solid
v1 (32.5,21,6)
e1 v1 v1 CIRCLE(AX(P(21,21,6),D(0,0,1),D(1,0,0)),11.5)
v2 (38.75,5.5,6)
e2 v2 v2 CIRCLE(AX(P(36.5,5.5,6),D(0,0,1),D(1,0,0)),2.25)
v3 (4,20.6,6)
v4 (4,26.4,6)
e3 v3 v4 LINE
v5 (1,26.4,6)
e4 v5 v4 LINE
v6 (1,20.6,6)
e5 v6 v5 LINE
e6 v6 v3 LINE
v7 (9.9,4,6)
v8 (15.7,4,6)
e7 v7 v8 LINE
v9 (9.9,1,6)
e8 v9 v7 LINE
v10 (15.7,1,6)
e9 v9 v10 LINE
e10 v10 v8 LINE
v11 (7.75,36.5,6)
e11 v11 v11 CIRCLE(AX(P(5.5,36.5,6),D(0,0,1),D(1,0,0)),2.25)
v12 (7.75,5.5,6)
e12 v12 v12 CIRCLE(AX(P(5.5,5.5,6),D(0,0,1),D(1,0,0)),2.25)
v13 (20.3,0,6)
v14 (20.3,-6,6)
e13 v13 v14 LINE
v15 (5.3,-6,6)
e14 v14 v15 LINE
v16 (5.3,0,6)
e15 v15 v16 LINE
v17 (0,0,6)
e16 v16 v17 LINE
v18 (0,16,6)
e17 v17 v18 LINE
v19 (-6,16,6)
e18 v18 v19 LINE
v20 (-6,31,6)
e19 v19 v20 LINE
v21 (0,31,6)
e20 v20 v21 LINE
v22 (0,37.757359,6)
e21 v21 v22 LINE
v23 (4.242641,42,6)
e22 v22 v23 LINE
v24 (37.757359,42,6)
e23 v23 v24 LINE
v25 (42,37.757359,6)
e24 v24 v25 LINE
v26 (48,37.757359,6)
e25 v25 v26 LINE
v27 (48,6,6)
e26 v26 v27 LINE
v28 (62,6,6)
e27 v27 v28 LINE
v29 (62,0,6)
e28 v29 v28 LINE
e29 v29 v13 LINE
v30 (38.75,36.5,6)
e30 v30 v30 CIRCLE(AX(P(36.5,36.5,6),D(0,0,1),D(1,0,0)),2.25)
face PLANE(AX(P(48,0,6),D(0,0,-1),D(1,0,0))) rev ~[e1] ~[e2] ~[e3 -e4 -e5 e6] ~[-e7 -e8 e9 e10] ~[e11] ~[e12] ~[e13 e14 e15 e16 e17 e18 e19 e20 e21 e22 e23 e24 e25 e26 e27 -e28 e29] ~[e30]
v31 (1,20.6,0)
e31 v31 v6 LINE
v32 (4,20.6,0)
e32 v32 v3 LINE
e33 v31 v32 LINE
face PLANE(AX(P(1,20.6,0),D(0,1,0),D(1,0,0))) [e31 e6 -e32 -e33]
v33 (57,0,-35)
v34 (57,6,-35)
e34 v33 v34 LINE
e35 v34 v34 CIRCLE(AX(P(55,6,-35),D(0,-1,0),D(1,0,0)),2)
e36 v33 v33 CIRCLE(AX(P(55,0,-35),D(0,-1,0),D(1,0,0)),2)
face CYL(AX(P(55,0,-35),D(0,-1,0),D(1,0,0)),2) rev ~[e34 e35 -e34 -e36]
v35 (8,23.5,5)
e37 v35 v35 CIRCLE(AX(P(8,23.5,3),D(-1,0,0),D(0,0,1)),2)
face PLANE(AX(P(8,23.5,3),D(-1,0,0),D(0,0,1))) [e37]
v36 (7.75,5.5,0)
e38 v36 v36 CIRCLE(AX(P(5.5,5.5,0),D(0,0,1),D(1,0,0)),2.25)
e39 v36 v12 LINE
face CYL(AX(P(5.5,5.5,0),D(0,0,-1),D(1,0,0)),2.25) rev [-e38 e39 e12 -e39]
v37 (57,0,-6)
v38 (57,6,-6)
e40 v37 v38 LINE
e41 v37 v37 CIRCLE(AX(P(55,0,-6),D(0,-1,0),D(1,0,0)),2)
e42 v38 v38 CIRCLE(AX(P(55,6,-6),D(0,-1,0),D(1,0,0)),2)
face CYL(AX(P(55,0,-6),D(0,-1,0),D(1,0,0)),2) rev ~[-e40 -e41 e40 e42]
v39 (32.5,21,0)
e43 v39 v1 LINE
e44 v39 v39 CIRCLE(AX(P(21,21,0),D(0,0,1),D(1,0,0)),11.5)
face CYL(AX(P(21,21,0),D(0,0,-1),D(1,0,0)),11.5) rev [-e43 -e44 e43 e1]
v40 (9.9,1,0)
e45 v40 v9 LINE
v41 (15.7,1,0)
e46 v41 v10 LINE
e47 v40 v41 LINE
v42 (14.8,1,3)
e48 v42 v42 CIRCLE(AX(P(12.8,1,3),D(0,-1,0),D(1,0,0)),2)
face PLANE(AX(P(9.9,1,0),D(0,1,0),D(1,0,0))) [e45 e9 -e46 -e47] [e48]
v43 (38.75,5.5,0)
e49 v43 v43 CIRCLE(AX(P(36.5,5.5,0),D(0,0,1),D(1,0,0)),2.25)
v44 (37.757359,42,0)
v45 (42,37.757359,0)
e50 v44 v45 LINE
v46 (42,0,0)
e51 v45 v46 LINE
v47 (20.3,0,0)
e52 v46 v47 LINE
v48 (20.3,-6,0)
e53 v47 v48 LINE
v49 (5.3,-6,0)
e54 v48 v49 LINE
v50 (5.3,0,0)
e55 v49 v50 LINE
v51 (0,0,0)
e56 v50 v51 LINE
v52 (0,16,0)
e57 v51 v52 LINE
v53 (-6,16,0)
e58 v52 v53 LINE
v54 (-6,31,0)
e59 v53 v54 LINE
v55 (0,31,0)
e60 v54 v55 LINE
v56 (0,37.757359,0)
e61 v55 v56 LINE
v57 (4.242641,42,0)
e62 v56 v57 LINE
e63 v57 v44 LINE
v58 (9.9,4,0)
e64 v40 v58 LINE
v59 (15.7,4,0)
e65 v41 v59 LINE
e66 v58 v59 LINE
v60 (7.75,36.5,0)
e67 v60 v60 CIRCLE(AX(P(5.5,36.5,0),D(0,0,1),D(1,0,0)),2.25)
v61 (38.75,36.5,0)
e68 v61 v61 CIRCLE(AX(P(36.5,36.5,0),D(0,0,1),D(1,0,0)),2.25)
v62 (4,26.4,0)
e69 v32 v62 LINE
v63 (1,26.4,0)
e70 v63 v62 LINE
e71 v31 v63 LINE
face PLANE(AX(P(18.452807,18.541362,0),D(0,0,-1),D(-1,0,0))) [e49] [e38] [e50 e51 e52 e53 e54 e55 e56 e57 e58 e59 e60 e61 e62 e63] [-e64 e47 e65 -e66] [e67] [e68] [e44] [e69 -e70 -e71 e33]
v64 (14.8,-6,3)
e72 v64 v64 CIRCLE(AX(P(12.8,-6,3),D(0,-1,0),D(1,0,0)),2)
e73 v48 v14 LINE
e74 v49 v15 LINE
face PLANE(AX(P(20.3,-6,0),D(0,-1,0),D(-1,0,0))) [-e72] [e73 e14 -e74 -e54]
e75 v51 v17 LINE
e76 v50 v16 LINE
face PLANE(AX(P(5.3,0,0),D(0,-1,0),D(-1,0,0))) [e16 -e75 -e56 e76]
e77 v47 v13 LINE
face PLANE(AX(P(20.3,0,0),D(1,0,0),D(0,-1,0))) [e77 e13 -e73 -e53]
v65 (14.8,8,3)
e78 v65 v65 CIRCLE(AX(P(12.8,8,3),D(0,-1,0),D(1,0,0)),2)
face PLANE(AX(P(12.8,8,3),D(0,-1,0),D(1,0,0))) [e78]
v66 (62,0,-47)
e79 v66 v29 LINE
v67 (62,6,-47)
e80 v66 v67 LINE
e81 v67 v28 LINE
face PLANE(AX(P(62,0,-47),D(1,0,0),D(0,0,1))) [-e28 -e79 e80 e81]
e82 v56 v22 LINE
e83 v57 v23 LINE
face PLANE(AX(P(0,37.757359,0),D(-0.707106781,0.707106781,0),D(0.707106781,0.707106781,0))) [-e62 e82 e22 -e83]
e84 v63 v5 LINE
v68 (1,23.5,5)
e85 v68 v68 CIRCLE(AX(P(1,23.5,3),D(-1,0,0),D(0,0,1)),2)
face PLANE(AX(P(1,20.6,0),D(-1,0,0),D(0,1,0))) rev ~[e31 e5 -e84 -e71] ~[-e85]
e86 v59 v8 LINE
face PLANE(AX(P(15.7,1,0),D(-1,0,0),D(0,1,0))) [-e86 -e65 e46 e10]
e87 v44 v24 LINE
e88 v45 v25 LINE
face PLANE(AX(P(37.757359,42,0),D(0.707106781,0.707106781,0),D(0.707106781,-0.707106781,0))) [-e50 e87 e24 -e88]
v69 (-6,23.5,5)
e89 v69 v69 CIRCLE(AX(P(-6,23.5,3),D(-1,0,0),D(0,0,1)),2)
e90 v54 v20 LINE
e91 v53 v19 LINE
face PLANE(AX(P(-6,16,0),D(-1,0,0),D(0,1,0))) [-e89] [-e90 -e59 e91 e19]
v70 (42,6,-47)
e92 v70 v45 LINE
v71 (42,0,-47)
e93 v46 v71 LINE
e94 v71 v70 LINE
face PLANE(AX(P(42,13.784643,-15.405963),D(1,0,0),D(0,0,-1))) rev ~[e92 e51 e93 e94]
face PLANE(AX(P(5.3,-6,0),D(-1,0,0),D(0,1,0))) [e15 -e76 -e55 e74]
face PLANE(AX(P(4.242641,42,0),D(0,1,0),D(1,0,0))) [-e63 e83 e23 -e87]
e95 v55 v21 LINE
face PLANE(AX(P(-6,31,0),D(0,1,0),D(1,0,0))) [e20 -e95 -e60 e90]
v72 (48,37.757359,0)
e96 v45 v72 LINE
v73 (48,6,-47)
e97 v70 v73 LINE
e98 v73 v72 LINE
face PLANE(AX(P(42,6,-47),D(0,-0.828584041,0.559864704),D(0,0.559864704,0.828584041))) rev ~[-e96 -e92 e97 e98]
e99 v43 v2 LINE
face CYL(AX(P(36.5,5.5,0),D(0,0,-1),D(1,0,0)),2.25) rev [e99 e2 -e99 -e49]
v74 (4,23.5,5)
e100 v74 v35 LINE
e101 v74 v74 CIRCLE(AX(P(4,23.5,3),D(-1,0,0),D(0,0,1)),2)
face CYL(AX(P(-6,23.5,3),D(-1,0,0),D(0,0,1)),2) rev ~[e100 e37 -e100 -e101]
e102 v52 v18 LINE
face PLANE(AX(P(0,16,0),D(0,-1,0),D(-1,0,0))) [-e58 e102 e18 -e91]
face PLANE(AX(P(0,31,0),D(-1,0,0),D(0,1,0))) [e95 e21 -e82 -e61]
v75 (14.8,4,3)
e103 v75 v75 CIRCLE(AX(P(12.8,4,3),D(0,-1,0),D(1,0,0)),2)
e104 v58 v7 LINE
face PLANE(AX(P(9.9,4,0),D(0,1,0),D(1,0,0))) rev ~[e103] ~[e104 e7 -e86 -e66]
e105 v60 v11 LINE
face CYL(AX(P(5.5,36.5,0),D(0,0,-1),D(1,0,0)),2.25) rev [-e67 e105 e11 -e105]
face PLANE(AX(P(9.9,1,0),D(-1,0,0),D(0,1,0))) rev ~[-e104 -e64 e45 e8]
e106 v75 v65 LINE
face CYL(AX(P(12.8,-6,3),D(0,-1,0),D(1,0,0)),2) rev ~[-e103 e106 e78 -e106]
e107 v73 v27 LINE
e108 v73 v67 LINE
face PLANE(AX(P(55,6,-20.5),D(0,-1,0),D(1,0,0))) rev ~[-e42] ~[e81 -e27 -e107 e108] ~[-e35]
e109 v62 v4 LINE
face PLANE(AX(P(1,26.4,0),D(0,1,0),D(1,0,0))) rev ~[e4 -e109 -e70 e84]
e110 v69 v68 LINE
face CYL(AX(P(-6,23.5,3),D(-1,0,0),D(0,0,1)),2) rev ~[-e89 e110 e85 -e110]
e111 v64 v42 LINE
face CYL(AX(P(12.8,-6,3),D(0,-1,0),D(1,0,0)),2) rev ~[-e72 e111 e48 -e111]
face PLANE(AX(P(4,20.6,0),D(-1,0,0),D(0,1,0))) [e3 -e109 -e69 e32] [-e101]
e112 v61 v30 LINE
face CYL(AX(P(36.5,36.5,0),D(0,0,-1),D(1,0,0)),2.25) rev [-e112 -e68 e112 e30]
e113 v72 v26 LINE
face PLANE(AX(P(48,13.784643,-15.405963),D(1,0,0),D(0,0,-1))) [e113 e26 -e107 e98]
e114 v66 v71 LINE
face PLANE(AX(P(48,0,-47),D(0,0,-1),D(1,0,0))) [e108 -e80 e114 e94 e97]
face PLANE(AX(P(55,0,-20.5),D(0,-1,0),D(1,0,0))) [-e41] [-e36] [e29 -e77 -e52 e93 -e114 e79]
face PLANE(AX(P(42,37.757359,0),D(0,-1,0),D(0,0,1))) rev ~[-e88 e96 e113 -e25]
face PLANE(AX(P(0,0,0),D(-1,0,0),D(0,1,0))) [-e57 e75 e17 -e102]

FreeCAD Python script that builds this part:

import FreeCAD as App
import Part
import Sketcher
Q = App.Units.Quantity

doc = App.newDocument("Part")
params = doc.addObject("Spreadsheet::Sheet", "Params")
for row, (alias, value) in enumerate([
    ("sketch1_diameter", "23 mm"),
    ("sketch1_diameter2", "4.5 mm"),
    ("sketch1_width", "15 mm"),
    ("sketch1_width2", "6 mm"),
    ("sketch1_width3", "3 mm"),
    ("pad1_length", "6 mm"),
    ("sketch2_width", "6 mm"),
    ("sketch2_height", "53 mm"),
    ("pad2_length", "6 mm"),
    ("sketch3_diameter", "4 mm"),
    ("sketch3_width", "14 mm"),
    ("sketch3_height", "53 mm"),
    ("pad3_length", "6 mm"),
    ("sketch4_diameter", "4 mm"),
    ("pocket1_length", "14 mm"),
    ("sketch5_diameter", "4 mm"),
    ("pocket2_length", "14 mm"),
], start=1):
    params.set(f"A{row}", alias)
    params.set(f"B{row}", "=" + value)
    params.setAlias(f"B{row}", alias)

body = doc.addObject("PartDesign::Body", "Body")

sketch1 = body.newObject("Sketcher::SketchObject", "Sketch")
sketch1.AttachmentSupport = (doc.getObject("XY_Plane"), [""])
sketch1.MapMode = "FlatFace"
sketch1.addGeometry([
    Part.LineSegment(App.Vector(0, 16, 0), App.Vector(0, 0, 0)),
    Part.LineSegment(App.Vector(0, 0, 0), App.Vector(5.3, 0, 0)),
    Part.LineSegment(App.Vector(5.3, 0, 0), App.Vector(5.3, -6, 0)),
    Part.LineSegment(App.Vector(5.3, -6, 0), App.Vector(20.3, -6, 0)),
    Part.LineSegment(App.Vector(20.3, -6, 0), App.Vector(20.3, 0, 0)),
    Part.LineSegment(App.Vector(20.3, 0, 0), App.Vector(42, 0, 0)),
    Part.LineSegment(App.Vector(42, 0, 0), App.Vector(42, 37.8, 0)),
    Part.LineSegment(App.Vector(42, 37.8, 0), App.Vector(37.8, 42, 0)),
    Part.LineSegment(App.Vector(37.8, 42, 0), App.Vector(4.2, 42, 0)),
    Part.LineSegment(App.Vector(4.2, 42, 0), App.Vector(0, 37.8, 0)),
    Part.LineSegment(App.Vector(0, 37.8, 0), App.Vector(0, 31, 0)),
    Part.LineSegment(App.Vector(0, 31, 0), App.Vector(-6, 31, 0)),
    Part.LineSegment(App.Vector(-6, 31, 0), App.Vector(-6, 16, 0)),
    Part.LineSegment(App.Vector(-6, 16, 0), App.Vector(0, 16, 0)),
    Part.Circle(App.Vector(36.5, 5.5, 0), App.Vector(0, 0, 1), 2.2),
    Part.LineSegment(App.Vector(9.9, 1, 0), App.Vector(9.9, 4, 0)),
    Part.LineSegment(App.Vector(9.9, 4, 0), App.Vector(15.7, 4, 0)),
    Part.LineSegment(App.Vector(15.7, 4, 0), App.Vector(15.7, 1, 0)),
    Part.LineSegment(App.Vector(15.7, 1, 0), App.Vector(9.9, 1, 0)),
    Part.Circle(App.Vector(5.5, 5.5, 0), App.Vector(0, 0, 1), 2.2),
    Part.Circle(App.Vector(21, 21, 0), App.Vector(0, 0, 1), 11.5),
    Part.Circle(App.Vector(36.5, 36.5, 0), App.Vector(0, 0, 1), 2.2),
    Part.LineSegment(App.Vector(1, 20.6, 0), App.Vector(1, 26.4, 0)),
    Part.LineSegment(App.Vector(1, 26.4, 0), App.Vector(4, 26.4, 0)),
    Part.LineSegment(App.Vector(4, 26.4, 0), App.Vector(4, 20.6, 0)),
    Part.LineSegment(App.Vector(4, 20.6, 0), App.Vector(1, 20.6, 0)),
    Part.Circle(App.Vector(5.5, 36.5, 0), App.Vector(0, 0, 1), 2.2),
], False)
sketch1.addConstraint([
    Sketcher.Constraint("Coincident", 0, 2, 1, 1),
    Sketcher.Constraint("Coincident", 1, 2, 2, 1),
    Sketcher.Constraint("Coincident", 2, 2, 3, 1),
    Sketcher.Constraint("Coincident", 3, 2, 4, 1),
    Sketcher.Constraint("Coincident", 4, 2, 5, 1),
    Sketcher.Constraint("Coincident", 5, 2, 6, 1),
    Sketcher.Constraint("Coincident", 6, 2, 7, 1),
    Sketcher.Constraint("Coincident", 7, 2, 8, 1),
    Sketcher.Constraint("Coincident", 8, 2, 9, 1),
    Sketcher.Constraint("Coincident", 9, 2, 10, 1),
    Sketcher.Constraint("Coincident", 10, 2, 11, 1),
    Sketcher.Constraint("Coincident", 11, 2, 12, 1),
    Sketcher.Constraint("Coincident", 12, 2, 13, 1),
    Sketcher.Constraint("Coincident", 13, 2, 0, 1),
    Sketcher.Constraint("Coincident", 15, 2, 16, 1),
    Sketcher.Constraint("Coincident", 16, 2, 17, 1),
    Sketcher.Constraint("Coincident", 17, 2, 18, 1),
    Sketcher.Constraint("Coincident", 18, 2, 15, 1),
    Sketcher.Constraint("Coincident", 22, 2, 23, 1),
    Sketcher.Constraint("Coincident", 23, 2, 24, 1),
    Sketcher.Constraint("Coincident", 24, 2, 25, 1),
    Sketcher.Constraint("Coincident", 25, 2, 22, 1),
    Sketcher.Constraint("Vertical", 0),
    Sketcher.Constraint("Horizontal", 1),
    Sketcher.Constraint("Vertical", 2),
    Sketcher.Constraint("Horizontal", 3),
    Sketcher.Constraint("Vertical", 4),
    Sketcher.Constraint("Horizontal", 5),
    Sketcher.Constraint("Vertical", 6),
    Sketcher.Constraint("Horizontal", 8),
    Sketcher.Constraint("Vertical", 10),
    Sketcher.Constraint("Horizontal", 11),
    Sketcher.Constraint("Vertical", 12),
    Sketcher.Constraint("Horizontal", 13),
    Sketcher.Constraint("Vertical", 15),
    Sketcher.Constraint("Horizontal", 16),
    Sketcher.Constraint("Vertical", 17),
    Sketcher.Constraint("Horizontal", 18),
    Sketcher.Constraint("Vertical", 22),
    Sketcher.Constraint("Horizontal", 23),
    Sketcher.Constraint("Vertical", 24),
    Sketcher.Constraint("Horizontal", 25),
    Sketcher.Constraint("Coincident", 0, 2, -1, 1),
    Sketcher.Constraint("Equal", 14, 19),
    Sketcher.Constraint("Equal", 19, 21),
    Sketcher.Constraint("Equal", 21, 26),
    Sketcher.Constraint("PointOnObject", 4, 2, -1),
    Sketcher.Constraint("PointOnObject", 9, 2, -2),
    Sketcher.Constraint("Perpendicular", 7, 9),
    Sketcher.Constraint("Horizontal", 14, 3, 19, 3),
    Sketcher.Constraint("Horizontal", 21, 3, 26, 3),
    Sketcher.Constraint("Horizontal", 6, 2, 9, 2),
    Sketcher.Constraint("Vertical", 14, 3, 21, 3),
    Sketcher.Constraint("Vertical", 19, 3, 26, 3),
    Sketcher.Constraint("Equal", 13, 2),
    Sketcher.Constraint("Equal", 3, 12),
    Sketcher.Constraint("Equal", 25, 15),
    Sketcher.Constraint("Equal", 18, 22),
    Sketcher.Constraint("Equal", 7, 9),
    Sketcher.Constraint("Diameter", 20, Q("23 mm")),
    Sketcher.Constraint("Diameter", 14, Q("4.5 mm")),
    Sketcher.Constraint("DistanceX", 3, 1, 3, 2, Q("15 mm")),
    Sketcher.Constraint("DistanceX", 11, 2, 11, 1, Q("6 mm")),
    Sketcher.Constraint("DistanceX", 23, 1, 23, 2, Q("3 mm")),
    Sketcher.Constraint("DistanceY", 0, 2, 0, 1, Q("16 mm")),
    Sketcher.Constraint("Distance", 7, Q("6 mm")),
    Sketcher.Constraint("DistanceX", 1, 1, 1, 2, Q("5.3 mm")),
    Sketcher.Constraint("DistanceX", 5, 1, 5, 2, Q("21.7 mm")),
    Sketcher.Constraint("DistanceX", 16, 1, 16, 2, Q("5.8 mm")),
    Sketcher.Constraint("DistanceX", -1, 1, 20, 3, Q("21 mm")),
    Sketcher.Constraint("DistanceY", -1, 1, 20, 3, Q("21 mm")),
    Sketcher.Constraint("DistanceY", -1, 1, 7, 2, Q("42 mm")),
    Sketcher.Constraint("DistanceY", -1, 1, 15, 2, Q("4 mm")),
    Sketcher.Constraint("DistanceX", -1, 1, 22, 2, Q("1 mm")),
    Sketcher.Constraint("DistanceX", 19, 3, 14, 3, Q("31 mm")),
    Sketcher.Constraint("DistanceY", 14, 3, 21, 3, Q("31 mm")),
    Sketcher.Constraint("DistanceX", -1, 1, 14, 3, Q("36.5 mm")),
    Sketcher.Constraint("DistanceY", -1, 1, 14, 3, Q("5.5 mm")),
    Sketcher.Constraint("DistanceX", -1, 1, 15, 2, Q("9.9 mm")),
    Sketcher.Constraint("DistanceY", -1, 1, 22, 2, Q("26.4 mm")),
])
sketch1.setExpression("Constraints[59]", "Params.sketch1_diameter")
sketch1.setExpression("Constraints[60]", "Params.sketch1_diameter2")
sketch1.setExpression("Constraints[61]", "Params.sketch1_width")
sketch1.setExpression("Constraints[62]", "Params.sketch1_width2")
sketch1.setExpression("Constraints[63]", "Params.sketch1_width3")
pad1 = body.newObject("PartDesign::Pad", "Pad")
pad1.Profile = sketch1
pad1.setExpression("Length", "Params.pad1_length")

sketch2 = body.newObject("Sketcher::SketchObject", "Sketch001")
sketch2.AttachmentSupport = (doc.getObject("YZ_Plane"), [""])
sketch2.MapMode = "FlatFace"
sketch2.AttachmentOffset = App.Placement(App.Vector(0, 0, 42), App.Rotation())
sketch2.addGeometry([
    Part.LineSegment(App.Vector(0, 6, 0), App.Vector(0, -47, 0)),
    Part.LineSegment(App.Vector(0, -47, 0), App.Vector(6, -47, 0)),
    Part.LineSegment(App.Vector(6, -47, 0), App.Vector(38, 0, 0)),
    Part.LineSegment(App.Vector(38, 0, 0), App.Vector(38, 6, 0)),
    Part.LineSegment(App.Vector(38, 6, 0), App.Vector(0, 6, 0)),
], False)
sketch2.addConstraint([
    Sketcher.Constraint("Coincident", 0, 2, 1, 1),
    Sketcher.Constraint("Coincident", 1, 2, 2, 1),
    Sketcher.Constraint("Coincident", 2, 2, 3, 1),
    Sketcher.Constraint("Coincident", 3, 2, 4, 1),
    Sketcher.Constraint("Coincident", 4, 2, 0, 1),
    Sketcher.Constraint("Vertical", 0),
    Sketcher.Constraint("Horizontal", 1),
    Sketcher.Constraint("Vertical", 3),
    Sketcher.Constraint("Horizontal", 4),
    Sketcher.Constraint("PointOnObject", 0, 2, -2),
    Sketcher.Constraint("PointOnObject", 2, 2, -1),
    Sketcher.Constraint("Equal", 1, 3),
    Sketcher.Constraint("DistanceX", 1, 1, 1, 2, Q("6 mm")),
    Sketcher.Constraint("DistanceY", 0, 2, 0, 1, Q("53 mm")),
    Sketcher.Constraint("DistanceX", 4, 2, 4, 1, Q("37.757359 mm")),
])
sketch2.setExpression("Constraints[12]", "Params.sketch2_width")
sketch2.setExpression("Constraints[13]", "Params.sketch2_height")
pad2 = body.newObject("PartDesign::Pad", "Pad001")
pad2.Profile = sketch2
pad2.setExpression("Length", "Params.pad2_length")

sketch3 = body.newObject("Sketcher::SketchObject", "Sketch002")
sketch3.AttachmentSupport = (doc.getObject("XZ_Plane"), [""])
sketch3.MapMode = "FlatFace"
sketch3.addGeometry([
    Part.LineSegment(App.Vector(48, 6, 0), App.Vector(48, -47, 0)),
    Part.LineSegment(App.Vector(48, -47, 0), App.Vector(62, -47, 0)),
    Part.LineSegment(App.Vector(62, -47, 0), App.Vector(62, 6, 0)),
    Part.LineSegment(App.Vector(62, 6, 0), App.Vector(48, 6, 0)),
    Part.Circle(App.Vector(55, -35, 0), App.Vector(0, 0, 1), 2),
    Part.Circle(App.Vector(55, -6, 0), App.Vector(0, 0, 1), 2),
], False)
sketch3.addConstraint([
    Sketcher.Constraint("Coincident", 0, 2, 1, 1),
    Sketcher.Constraint("Coincident", 1, 2, 2, 1),
    Sketcher.Constraint("Coincident", 2, 2, 3, 1),
    Sketcher.Constraint("Coincident", 3, 2, 0, 1),
    Sketcher.Constraint("Vertical", 0),
    Sketcher.Constraint("Horizontal", 1),
    Sketcher.Constraint("Vertical", 2),
    Sketcher.Constraint("Horizontal", 3),
    Sketcher.Constraint("Equal", 4, 5),
    Sketcher.Constraint("Vertical", 4, 3, 5, 3),
    Sketcher.Constraint("Diameter", 4, Q("4 mm")),
    Sketcher.Constraint("DistanceX", 1, 1, 1, 2, Q("14 mm")),
    Sketcher.Constraint("DistanceY", 0, 2, 0, 1, Q("53 mm")),
    Sketcher.Constraint("DistanceX", -1, 1, 4, 3, Q("55 mm")),
    Sketcher.Constraint("DistanceY", 4, 3, -1, 1, Q("35 mm")),
    Sketcher.Constraint("DistanceY", 5, 3, -1, 1, Q("6 mm")),
    Sketcher.Constraint("DistanceX", -1, 1, 0, 2, Q("48 mm")),
    Sketcher.Constraint("DistanceY", 0, 2, -1, 1, Q("47 mm")),
])
sketch3.setExpression("Constraints[10]", "Params.sketch3_diameter")
sketch3.setExpression("Constraints[11]", "Params.sketch3_width")
sketch3.setExpression("Constraints[12]", "Params.sketch3_height")
pad3 = body.newObject("PartDesign::Pad", "Pad002")
pad3.Profile = sketch3
pad3.setExpression("Length", "Params.pad3_length")
pad3.Reversed = True

sketch4 = body.newObject("Sketcher::SketchObject", "Sketch003")
sketch4.AttachmentSupport = (doc.getObject("YZ_Plane"), [""])
sketch4.MapMode = "FlatFace"
sketch4.AttachmentOffset = App.Placement(App.Vector(0, 0, -6), App.Rotation())
sketch4.addGeometry(Part.Circle(App.Vector(23.5, 3, 0), App.Vector(0, 0, 1), 2), False)
sketch4.addConstraint([
    Sketcher.Constraint("Diameter", 0, Q("4 mm")),
    Sketcher.Constraint("DistanceY", -1, 1, 0, 3, Q("3 mm")),
    Sketcher.Constraint("DistanceX", -1, 1, 0, 3, Q("23.5 mm")),
])
sketch4.setExpression("Constraints[0]", "Params.sketch4_diameter")
pocket1 = body.newObject("PartDesign::Pocket", "Pocket")
pocket1.Profile = sketch4
pocket1.setExpression("Length", "Params.pocket1_length")
pocket1.Reversed = True

sketch5 = body.newObject("Sketcher::SketchObject", "Sketch004")
sketch5.AttachmentSupport = (doc.getObject("XZ_Plane"), [""])
sketch5.MapMode = "FlatFace"
sketch5.AttachmentOffset = App.Placement(App.Vector(0, 0, 6), App.Rotation())
sketch5.addGeometry(Part.Circle(App.Vector(12.8, 3, 0), App.Vector(0, 0, 1), 2), False)
sketch5.addConstraint([
    Sketcher.Constraint("Diameter", 0, Q("4 mm")),
    Sketcher.Constraint("DistanceY", -1, 1, 0, 3, Q("3 mm")),
    Sketcher.Constraint("DistanceX", -1, 1, 0, 3, Q("12.8 mm")),
])
sketch5.setExpression("Constraints[0]", "Params.sketch5_diameter")
pocket2 = body.newObject("PartDesign::Pocket", "Pocket001")
pocket2.Profile = sketch5
pocket2.setExpression("Length", "Params.pocket2_length")

doc.recompute()
